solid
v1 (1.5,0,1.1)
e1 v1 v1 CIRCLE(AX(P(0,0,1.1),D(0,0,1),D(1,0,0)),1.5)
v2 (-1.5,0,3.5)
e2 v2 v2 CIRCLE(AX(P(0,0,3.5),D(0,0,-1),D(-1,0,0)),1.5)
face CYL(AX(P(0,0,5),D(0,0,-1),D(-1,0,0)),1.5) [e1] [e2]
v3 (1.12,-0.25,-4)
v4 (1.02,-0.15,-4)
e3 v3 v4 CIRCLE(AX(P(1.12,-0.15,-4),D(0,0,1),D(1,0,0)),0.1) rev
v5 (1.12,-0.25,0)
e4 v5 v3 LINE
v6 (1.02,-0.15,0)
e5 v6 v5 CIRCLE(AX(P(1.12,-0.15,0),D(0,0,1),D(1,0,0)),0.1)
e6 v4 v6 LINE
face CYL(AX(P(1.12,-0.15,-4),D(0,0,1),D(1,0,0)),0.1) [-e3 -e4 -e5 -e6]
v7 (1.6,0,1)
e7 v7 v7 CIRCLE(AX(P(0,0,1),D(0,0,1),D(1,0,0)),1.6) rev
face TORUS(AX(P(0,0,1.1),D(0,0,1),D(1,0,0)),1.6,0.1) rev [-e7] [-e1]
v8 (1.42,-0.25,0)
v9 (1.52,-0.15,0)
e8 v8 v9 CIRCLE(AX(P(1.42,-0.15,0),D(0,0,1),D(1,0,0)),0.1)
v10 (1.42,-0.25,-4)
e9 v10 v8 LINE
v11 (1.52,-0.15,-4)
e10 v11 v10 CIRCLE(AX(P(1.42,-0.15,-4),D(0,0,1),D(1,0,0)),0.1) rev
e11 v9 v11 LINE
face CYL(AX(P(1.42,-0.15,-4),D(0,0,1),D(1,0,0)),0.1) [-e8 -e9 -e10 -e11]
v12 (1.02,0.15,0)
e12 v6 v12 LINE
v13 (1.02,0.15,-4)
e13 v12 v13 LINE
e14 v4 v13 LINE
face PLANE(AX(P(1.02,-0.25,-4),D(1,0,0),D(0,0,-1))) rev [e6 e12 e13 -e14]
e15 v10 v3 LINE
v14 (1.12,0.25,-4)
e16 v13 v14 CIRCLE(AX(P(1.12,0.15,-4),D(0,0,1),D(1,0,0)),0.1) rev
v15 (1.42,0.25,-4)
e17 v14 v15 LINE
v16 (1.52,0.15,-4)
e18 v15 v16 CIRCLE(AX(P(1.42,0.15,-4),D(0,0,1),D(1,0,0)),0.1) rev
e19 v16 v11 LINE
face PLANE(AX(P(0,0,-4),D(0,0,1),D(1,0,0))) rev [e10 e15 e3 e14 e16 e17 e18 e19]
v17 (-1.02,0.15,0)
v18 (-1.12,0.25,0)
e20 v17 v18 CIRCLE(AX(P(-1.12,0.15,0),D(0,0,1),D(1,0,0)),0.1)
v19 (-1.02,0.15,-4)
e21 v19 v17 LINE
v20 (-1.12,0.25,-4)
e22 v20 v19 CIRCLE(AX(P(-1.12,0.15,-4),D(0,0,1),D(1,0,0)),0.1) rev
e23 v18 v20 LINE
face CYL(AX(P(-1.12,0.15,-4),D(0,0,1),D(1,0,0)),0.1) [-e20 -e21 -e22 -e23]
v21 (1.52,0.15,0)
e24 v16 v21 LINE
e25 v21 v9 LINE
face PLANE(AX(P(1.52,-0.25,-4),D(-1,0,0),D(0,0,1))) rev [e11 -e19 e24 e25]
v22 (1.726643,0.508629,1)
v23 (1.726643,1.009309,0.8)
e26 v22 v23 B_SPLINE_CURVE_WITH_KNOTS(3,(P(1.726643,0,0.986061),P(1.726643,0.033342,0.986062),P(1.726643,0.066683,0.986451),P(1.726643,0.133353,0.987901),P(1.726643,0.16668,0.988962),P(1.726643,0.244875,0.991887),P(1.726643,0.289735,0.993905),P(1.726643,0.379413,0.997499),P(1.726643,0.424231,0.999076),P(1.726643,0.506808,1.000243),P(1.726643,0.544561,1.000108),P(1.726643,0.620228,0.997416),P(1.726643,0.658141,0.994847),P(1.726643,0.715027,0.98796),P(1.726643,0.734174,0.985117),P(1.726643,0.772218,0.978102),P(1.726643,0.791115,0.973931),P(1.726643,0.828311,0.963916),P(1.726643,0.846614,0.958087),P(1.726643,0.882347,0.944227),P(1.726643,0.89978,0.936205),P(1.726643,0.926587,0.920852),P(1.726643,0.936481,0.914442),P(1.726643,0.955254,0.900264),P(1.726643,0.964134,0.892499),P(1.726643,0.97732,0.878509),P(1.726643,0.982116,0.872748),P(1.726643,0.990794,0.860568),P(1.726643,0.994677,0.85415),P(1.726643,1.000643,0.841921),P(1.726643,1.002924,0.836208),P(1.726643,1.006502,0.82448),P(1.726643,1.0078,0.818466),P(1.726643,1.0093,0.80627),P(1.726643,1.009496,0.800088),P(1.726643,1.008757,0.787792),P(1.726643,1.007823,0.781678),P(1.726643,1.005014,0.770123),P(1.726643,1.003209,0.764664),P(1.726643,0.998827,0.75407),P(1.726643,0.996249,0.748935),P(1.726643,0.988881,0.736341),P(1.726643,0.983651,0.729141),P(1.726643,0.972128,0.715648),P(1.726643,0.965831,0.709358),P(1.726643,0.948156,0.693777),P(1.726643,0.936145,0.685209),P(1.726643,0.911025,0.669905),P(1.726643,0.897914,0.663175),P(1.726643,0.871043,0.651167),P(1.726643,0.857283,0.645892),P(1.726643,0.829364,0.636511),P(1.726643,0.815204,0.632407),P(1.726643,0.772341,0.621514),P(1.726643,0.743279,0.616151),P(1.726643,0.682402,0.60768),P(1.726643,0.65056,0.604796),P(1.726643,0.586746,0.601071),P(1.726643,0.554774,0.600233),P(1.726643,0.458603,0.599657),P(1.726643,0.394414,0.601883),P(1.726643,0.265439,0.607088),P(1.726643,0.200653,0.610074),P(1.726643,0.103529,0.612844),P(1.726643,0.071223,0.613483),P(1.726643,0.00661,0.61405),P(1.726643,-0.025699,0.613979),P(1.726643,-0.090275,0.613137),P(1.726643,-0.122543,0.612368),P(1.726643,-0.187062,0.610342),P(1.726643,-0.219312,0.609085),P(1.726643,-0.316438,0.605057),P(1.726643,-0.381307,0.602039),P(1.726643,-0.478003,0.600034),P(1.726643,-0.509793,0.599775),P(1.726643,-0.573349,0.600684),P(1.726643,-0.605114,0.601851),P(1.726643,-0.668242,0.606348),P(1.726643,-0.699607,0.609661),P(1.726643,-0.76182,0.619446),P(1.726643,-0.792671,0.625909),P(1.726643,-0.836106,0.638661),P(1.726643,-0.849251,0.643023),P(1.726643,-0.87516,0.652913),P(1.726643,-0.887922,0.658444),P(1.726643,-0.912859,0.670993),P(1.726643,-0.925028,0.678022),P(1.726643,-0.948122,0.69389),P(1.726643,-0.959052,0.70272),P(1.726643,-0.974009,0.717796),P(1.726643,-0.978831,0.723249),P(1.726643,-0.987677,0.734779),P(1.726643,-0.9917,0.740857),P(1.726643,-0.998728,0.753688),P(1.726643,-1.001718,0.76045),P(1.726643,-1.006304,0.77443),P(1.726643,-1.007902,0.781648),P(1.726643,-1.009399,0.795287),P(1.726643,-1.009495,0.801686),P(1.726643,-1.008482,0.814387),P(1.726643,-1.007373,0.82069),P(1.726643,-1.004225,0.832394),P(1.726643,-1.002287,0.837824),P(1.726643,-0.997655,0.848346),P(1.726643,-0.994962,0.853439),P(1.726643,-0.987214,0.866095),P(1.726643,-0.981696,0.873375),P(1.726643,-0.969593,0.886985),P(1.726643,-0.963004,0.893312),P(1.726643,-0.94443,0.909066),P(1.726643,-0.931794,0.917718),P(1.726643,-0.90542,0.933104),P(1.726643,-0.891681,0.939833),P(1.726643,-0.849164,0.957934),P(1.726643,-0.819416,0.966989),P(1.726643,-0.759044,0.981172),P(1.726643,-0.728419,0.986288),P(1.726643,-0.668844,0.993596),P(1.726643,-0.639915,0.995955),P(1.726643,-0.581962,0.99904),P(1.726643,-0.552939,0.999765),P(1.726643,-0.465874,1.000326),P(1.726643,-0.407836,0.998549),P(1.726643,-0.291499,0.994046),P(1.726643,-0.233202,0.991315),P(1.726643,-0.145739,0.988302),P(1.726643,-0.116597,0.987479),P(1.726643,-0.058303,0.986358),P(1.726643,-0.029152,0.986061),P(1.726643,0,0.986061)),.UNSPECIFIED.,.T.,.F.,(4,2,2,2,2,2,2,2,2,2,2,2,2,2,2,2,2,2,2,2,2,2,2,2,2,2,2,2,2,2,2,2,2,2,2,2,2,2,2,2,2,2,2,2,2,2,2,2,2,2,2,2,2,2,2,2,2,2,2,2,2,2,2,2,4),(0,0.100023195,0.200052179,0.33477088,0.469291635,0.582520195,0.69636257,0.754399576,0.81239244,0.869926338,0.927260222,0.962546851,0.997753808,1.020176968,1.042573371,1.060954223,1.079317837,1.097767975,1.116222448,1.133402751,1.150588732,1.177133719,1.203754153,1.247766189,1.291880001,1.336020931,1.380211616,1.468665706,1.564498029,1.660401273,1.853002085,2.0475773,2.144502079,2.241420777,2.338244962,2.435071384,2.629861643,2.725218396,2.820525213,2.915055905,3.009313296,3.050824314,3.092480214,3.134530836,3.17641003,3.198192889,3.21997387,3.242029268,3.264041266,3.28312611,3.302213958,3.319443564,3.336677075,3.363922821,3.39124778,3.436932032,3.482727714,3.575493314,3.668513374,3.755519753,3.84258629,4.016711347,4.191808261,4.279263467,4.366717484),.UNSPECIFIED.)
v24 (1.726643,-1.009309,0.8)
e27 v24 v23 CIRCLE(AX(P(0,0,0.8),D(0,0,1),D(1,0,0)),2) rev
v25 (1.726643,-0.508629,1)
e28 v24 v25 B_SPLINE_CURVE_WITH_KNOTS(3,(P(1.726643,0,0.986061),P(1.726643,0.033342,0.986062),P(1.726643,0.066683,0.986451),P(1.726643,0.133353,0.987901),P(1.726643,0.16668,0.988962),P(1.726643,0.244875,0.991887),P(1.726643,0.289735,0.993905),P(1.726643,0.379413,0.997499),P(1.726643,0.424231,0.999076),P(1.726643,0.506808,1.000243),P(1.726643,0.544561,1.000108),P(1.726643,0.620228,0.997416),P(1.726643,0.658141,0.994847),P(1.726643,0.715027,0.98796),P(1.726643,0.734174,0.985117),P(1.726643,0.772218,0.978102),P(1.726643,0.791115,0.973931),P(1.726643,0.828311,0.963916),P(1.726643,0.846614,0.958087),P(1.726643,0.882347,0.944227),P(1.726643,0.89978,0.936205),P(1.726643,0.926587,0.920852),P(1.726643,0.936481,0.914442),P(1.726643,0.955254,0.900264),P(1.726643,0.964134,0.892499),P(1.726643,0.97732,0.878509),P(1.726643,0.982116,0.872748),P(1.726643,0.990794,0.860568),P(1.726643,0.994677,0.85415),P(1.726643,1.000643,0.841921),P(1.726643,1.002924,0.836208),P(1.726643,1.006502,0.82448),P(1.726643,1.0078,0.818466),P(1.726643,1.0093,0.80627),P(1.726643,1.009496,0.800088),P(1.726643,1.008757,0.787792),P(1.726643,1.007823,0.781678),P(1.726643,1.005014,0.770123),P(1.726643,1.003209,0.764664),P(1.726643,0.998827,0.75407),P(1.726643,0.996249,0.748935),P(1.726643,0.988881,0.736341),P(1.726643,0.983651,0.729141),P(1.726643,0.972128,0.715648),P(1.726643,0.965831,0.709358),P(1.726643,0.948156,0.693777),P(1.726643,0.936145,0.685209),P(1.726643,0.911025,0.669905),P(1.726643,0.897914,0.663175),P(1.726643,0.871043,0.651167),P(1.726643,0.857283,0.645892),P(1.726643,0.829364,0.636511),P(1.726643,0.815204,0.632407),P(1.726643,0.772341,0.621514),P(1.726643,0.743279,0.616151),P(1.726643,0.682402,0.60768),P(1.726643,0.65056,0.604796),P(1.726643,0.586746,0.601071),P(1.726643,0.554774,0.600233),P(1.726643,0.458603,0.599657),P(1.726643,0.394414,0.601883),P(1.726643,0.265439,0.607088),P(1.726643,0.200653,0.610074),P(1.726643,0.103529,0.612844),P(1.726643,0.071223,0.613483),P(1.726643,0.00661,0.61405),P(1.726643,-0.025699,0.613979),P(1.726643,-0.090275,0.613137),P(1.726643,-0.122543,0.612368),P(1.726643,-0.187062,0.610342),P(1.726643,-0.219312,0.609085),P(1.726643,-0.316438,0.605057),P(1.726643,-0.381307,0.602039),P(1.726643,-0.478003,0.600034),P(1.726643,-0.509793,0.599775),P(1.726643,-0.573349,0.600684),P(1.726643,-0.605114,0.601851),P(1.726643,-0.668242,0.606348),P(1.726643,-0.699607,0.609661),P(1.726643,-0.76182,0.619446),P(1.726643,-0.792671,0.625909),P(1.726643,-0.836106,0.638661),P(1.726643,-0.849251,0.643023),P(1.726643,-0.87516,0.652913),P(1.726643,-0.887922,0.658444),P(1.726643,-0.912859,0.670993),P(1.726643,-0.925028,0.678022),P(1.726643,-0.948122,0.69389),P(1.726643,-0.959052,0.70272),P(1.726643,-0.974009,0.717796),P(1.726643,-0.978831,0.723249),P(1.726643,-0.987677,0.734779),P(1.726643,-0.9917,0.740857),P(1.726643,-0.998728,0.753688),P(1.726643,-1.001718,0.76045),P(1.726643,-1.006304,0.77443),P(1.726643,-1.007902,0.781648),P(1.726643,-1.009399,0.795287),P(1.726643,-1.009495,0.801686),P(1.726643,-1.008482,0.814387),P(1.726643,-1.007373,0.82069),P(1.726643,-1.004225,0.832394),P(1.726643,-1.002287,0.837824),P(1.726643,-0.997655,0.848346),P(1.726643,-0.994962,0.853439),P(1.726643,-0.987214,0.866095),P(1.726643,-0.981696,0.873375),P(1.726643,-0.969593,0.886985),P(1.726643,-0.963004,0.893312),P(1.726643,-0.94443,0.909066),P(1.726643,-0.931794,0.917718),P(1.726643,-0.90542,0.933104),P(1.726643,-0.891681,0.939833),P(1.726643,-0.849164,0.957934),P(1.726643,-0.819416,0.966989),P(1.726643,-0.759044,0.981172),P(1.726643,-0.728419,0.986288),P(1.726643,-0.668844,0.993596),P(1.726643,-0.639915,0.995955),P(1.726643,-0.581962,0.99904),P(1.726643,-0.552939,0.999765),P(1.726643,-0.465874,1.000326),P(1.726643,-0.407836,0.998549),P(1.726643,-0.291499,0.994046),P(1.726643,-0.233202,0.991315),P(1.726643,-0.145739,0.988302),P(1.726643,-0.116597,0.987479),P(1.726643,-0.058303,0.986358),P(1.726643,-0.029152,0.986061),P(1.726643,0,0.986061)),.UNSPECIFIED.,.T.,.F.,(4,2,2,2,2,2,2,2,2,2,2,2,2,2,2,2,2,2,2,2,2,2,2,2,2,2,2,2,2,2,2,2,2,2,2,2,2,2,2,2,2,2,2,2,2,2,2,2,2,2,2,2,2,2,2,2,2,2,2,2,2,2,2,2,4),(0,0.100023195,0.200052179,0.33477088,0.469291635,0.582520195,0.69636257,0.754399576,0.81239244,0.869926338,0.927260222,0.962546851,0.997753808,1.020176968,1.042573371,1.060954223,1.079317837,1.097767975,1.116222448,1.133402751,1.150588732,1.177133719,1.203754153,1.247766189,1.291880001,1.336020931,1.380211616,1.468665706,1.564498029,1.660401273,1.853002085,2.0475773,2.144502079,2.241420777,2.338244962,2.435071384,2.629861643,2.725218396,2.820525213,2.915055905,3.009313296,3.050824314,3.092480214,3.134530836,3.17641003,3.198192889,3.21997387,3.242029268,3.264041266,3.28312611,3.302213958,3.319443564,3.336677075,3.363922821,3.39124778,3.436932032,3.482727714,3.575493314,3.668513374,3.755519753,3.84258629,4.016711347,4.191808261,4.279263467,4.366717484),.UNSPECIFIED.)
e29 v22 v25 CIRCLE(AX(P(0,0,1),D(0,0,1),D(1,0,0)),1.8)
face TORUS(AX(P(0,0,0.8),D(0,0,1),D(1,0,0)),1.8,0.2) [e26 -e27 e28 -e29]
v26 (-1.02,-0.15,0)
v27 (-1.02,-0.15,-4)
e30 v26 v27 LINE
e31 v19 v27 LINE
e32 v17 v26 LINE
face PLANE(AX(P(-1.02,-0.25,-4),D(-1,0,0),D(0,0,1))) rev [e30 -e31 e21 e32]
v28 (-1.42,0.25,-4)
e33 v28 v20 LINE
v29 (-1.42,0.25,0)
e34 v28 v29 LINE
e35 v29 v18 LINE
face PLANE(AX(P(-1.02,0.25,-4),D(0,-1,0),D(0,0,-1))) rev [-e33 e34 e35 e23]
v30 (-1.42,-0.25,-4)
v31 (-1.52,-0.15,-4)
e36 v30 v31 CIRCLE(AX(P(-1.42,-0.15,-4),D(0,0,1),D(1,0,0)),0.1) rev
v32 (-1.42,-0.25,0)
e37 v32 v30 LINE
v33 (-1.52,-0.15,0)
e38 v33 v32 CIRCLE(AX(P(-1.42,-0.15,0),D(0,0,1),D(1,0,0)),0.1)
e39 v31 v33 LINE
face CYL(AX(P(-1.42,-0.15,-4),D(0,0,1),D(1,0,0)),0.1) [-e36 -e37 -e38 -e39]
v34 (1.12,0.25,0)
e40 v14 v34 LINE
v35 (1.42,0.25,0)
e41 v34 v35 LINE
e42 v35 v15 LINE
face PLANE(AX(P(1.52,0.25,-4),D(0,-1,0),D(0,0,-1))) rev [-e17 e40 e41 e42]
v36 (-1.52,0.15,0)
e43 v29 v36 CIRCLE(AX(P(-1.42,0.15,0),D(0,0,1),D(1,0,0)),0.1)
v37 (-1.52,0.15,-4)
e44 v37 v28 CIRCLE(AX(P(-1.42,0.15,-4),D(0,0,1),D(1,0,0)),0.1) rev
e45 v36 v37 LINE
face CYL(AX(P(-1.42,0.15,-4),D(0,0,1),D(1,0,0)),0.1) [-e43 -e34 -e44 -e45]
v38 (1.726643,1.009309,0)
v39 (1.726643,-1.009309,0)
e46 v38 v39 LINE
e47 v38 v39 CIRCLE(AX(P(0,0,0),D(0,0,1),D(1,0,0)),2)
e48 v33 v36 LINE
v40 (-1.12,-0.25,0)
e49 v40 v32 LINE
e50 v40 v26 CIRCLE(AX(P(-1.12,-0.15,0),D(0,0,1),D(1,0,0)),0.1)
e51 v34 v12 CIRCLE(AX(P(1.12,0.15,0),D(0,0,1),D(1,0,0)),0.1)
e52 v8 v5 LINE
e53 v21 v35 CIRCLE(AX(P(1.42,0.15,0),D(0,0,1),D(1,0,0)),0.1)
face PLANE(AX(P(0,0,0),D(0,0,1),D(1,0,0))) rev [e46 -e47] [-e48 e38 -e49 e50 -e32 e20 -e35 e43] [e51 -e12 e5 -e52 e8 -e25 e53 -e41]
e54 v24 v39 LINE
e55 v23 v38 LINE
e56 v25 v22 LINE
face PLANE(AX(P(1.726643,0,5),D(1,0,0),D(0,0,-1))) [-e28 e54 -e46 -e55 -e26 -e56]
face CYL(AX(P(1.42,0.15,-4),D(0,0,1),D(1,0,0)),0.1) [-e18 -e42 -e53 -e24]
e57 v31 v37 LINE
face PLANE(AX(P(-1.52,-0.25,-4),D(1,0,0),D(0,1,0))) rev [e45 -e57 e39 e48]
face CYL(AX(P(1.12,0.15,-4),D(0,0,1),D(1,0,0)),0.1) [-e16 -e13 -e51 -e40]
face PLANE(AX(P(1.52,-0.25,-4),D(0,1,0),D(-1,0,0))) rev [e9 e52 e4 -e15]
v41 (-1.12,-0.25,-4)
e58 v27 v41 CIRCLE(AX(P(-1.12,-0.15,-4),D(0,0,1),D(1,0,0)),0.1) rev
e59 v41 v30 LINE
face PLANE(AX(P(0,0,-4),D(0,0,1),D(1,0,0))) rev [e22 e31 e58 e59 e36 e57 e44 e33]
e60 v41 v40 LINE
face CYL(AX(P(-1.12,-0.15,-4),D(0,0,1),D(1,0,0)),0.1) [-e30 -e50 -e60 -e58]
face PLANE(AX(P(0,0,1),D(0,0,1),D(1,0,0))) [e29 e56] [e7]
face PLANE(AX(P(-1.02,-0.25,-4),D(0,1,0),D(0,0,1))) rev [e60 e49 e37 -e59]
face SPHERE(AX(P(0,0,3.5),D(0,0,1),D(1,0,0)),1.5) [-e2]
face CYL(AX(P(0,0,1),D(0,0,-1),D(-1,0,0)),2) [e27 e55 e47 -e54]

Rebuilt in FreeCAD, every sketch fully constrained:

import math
import FreeCAD as App
import Part
import Sketcher


def edges_at(feature, points):
    """Names of the edges that pass closest to the given points."""
    edges = feature.Shape.Edges
    near = lambda p: min(range(len(edges)), key=lambda i: edges[i].distToShape(Part.Vertex(*p))[0])
    return sorted({f"Edge{near(p) + 1}" for p in points})

doc = App.newDocument("Part")
body = doc.addObject("PartDesign::Body", "Body")

# Sketch on XY plane
sketch1 = body.newObject("Sketcher::SketchObject", "Sketch")
sketch1.AttachmentSupport = (doc.getObject("XY_Plane"), [""])
sketch1.MapMode = "FlatFace"
sketch1.addGeometry(Part.Circle(App.Vector(0, 0, 0), App.Vector(0, 0, 1), 2), False)
sketch1.addConstraint(Sketcher.Constraint("Coincident", 0, 3, -1, 1))
sketch1.addConstraint(Sketcher.Constraint("Diameter", 0, 4.0))
pad1 = body.newObject("PartDesign::Pad", "Pad")
pad1.Profile = sketch1
pad1.Length = 1

# Sketch on XY plane
sketch2 = body.newObject("Sketcher::SketchObject", "Sketch001")
sketch2.AttachmentSupport = (doc.getObject("XY_Plane"), [""])
sketch2.MapMode = "FlatFace"
sketch2.AttachmentOffset = App.Placement(App.Vector(0, 0, 1), App.Rotation())
sketch2.addGeometry(Part.Circle(App.Vector(0, 0, 0), App.Vector(0, 0, 1), 1.5), False)
sketch2.addConstraint(Sketcher.Constraint("Coincident", 0, 3, -1, 1))
sketch2.addConstraint(Sketcher.Constraint("Diameter", 0, 3.0))
pad2 = body.newObject("PartDesign::Pad", "Pad001")
pad2.Profile = sketch2
pad2.Length = 4
doc.recompute()

fillet = body.newObject("PartDesign::Fillet", "Fillet")
fillet.Base = (pad2, edges_at(pad2, [(-1.5, 0, 5)]))
fillet.Radius = 1.5

# Sketch on XY plane
sketch3 = body.newObject("Sketcher::SketchObject", "Sketch002")
sketch3.AttachmentSupport = (doc.getObject("XY_Plane"), [""])
sketch3.MapMode = "FlatFace"
sketch3.addGeometry(Part.LineSegment(App.Vector(1.5, 0.2, 0), App.Vector(1.5, -0.2, 0)), False)
sketch3.addGeometry(Part.LineSegment(App.Vector(1.5, -0.2, 0), App.Vector(1, -0.2, 0)), False)
sketch3.addGeometry(Part.LineSegment(App.Vector(1, -0.2, 0), App.Vector(1, 0.2, 0)), False)
sketch3.addGeometry(Part.LineSegment(App.Vector(1, 0.2, 0), App.Vector(1.5, 0.2, 0)), False)
sketch3.addGeometry(Part.LineSegment(App.Vector(-1, 0.2, 0), App.Vector(-1, -0.2, 0)), False)
sketch3.addGeometry(Part.LineSegment(App.Vector(-1, -0.2, 0), App.Vector(-1.5, -0.2, 0)), False)
sketch3.addGeometry(Part.LineSegment(App.Vector(-1.5, -0.2, 0), App.Vector(-1.5, 0.2, 0)), False)
sketch3.addGeometry(Part.LineSegment(App.Vector(-1.5, 0.2, 0), App.Vector(-1, 0.2, 0)), False)
sketch3.addConstraint(Sketcher.Constraint("Coincident", 0, 2, 1, 1))
sketch3.addConstraint(Sketcher.Constraint("Coincident", 1, 2, 2, 1))
sketch3.addConstraint(Sketcher.Constraint("Coincident", 2, 2, 3, 1))
sketch3.addConstraint(Sketcher.Constraint("Coincident", 3, 2, 0, 1))
sketch3.addConstraint(Sketcher.Constraint("Coincident", 4, 2, 5, 1))
sketch3.addConstraint(Sketcher.Constraint("Coincident", 5, 2, 6, 1))
sketch3.addConstraint(Sketcher.Constraint("Coincident", 6, 2, 7, 1))
sketch3.addConstraint(Sketcher.Constraint("Coincident", 7, 2, 4, 1))
sketch3.addConstraint(Sketcher.Constraint("Vertical", 0))
sketch3.addConstraint(Sketcher.Constraint("Horizontal", 1))
sketch3.addConstraint(Sketcher.Constraint("Vertical", 2))
sketch3.addConstraint(Sketcher.Constraint("Horizontal", 3))
sketch3.addConstraint(Sketcher.Constraint("Vertical", 4))
sketch3.addConstraint(Sketcher.Constraint("Horizontal", 5))
sketch3.addConstraint(Sketcher.Constraint("Vertical", 6))
sketch3.addConstraint(Sketcher.Constraint("Horizontal", 7))
sketch3.addConstraint(Sketcher.Constraint("Symmetric", 2, 2, 4, 2, -1, 1))
sketch3.addConstraint(Sketcher.Constraint("Symmetric", 0, 2, 6, 2, -1, 1))
sketch3.addConstraint(Sketcher.Constraint("Horizontal", 1, 2, 4, 2))
sketch3.addConstraint(Sketcher.Constraint("Equal", 7, 0))
sketch3.addConstraint(Sketcher.Constraint("DistanceX", 1, 2, 1, 1, 0.5))
sketch3.addConstraint(Sketcher.Constraint("DistanceX", -1, 1, 0, 2, 1.52))
pad3 = body.newObject("PartDesign::Pad", "Pad002")
pad3.Profile = sketch3
pad3.Length = 4
pad3.Reversed = True
doc.recompute()

fillet2 = body.newObject("PartDesign::Fillet", "Fillet001")
fillet2.Base = (pad3, edges_at(pad3, [(-2, 0, 1)]))
fillet2.Radius = 0.2
doc.recompute()

fillet3 = body.newObject("PartDesign::Fillet", "Fillet002")
fillet3.Base = (fillet2, edges_at(fillet2, [(-1.5, 0, 1)]))
fillet3.Radius = 0.1
doc.recompute()

fillet4 = body.newObject("PartDesign::Fillet", "Fillet003")
fillet4.Base = (fillet3, edges_at(fillet3, [
    (1.02, -0.25, -2),
    (1.02, 0.25, -2),
    (1.52, 0.25, -2),
    (1.52, -0.25, -2),
    (-1.52, -0.25, -2),
    (-1.52, 0.25, -2),
    (-1.02, 0.25, -2),
    (-1.02, -0.25, -2),
]))
fillet4.Radius = 0.1

# Sketch on XY plane
sketch4 = body.newObject("Sketcher::SketchObject", "Sketch003")
sketch4.AttachmentSupport = (doc.getObject("XY_Plane"), [""])
sketch4.MapMode = "FlatFace"
sketch4.addGeometry(Part.LineSegment(App.Vector(1.7, -1, 0), App.Vector(1.7, 1, 0)), False)
sketch4.addGeometry(Part.ArcOfCircle(Part.Circle(App.Vector(0, 0, 0), App.Vector(0, 0, 1), 2), math.radians(-30), math.radians(30)), False)
sketch4.addConstraint(Sketcher.Constraint("Coincident", 0, 1, 1, 1))
sketch4.addConstraint(Sketcher.Constraint("Coincident", 1, 2, 0, 2))
sketch4.addConstraint(Sketcher.Constraint("Vertical", 0))
sketch4.addConstraint(Sketcher.Constraint("Coincident", 1, 3, -1, 1))
sketch4.addConstraint(Sketcher.Constraint("Radius", 1, 2.0))
sketch4.addConstraint(Sketcher.Constraint("DistanceY", 0, 1, 0, 2, 2.018617))
pocket1 = body.newObject("PartDesign::Pocket", "Pocket")
pocket1.Profile = sketch4
pocket1.Type = "ThroughAll"
pocket1.Reversed = True

doc.recompute()
